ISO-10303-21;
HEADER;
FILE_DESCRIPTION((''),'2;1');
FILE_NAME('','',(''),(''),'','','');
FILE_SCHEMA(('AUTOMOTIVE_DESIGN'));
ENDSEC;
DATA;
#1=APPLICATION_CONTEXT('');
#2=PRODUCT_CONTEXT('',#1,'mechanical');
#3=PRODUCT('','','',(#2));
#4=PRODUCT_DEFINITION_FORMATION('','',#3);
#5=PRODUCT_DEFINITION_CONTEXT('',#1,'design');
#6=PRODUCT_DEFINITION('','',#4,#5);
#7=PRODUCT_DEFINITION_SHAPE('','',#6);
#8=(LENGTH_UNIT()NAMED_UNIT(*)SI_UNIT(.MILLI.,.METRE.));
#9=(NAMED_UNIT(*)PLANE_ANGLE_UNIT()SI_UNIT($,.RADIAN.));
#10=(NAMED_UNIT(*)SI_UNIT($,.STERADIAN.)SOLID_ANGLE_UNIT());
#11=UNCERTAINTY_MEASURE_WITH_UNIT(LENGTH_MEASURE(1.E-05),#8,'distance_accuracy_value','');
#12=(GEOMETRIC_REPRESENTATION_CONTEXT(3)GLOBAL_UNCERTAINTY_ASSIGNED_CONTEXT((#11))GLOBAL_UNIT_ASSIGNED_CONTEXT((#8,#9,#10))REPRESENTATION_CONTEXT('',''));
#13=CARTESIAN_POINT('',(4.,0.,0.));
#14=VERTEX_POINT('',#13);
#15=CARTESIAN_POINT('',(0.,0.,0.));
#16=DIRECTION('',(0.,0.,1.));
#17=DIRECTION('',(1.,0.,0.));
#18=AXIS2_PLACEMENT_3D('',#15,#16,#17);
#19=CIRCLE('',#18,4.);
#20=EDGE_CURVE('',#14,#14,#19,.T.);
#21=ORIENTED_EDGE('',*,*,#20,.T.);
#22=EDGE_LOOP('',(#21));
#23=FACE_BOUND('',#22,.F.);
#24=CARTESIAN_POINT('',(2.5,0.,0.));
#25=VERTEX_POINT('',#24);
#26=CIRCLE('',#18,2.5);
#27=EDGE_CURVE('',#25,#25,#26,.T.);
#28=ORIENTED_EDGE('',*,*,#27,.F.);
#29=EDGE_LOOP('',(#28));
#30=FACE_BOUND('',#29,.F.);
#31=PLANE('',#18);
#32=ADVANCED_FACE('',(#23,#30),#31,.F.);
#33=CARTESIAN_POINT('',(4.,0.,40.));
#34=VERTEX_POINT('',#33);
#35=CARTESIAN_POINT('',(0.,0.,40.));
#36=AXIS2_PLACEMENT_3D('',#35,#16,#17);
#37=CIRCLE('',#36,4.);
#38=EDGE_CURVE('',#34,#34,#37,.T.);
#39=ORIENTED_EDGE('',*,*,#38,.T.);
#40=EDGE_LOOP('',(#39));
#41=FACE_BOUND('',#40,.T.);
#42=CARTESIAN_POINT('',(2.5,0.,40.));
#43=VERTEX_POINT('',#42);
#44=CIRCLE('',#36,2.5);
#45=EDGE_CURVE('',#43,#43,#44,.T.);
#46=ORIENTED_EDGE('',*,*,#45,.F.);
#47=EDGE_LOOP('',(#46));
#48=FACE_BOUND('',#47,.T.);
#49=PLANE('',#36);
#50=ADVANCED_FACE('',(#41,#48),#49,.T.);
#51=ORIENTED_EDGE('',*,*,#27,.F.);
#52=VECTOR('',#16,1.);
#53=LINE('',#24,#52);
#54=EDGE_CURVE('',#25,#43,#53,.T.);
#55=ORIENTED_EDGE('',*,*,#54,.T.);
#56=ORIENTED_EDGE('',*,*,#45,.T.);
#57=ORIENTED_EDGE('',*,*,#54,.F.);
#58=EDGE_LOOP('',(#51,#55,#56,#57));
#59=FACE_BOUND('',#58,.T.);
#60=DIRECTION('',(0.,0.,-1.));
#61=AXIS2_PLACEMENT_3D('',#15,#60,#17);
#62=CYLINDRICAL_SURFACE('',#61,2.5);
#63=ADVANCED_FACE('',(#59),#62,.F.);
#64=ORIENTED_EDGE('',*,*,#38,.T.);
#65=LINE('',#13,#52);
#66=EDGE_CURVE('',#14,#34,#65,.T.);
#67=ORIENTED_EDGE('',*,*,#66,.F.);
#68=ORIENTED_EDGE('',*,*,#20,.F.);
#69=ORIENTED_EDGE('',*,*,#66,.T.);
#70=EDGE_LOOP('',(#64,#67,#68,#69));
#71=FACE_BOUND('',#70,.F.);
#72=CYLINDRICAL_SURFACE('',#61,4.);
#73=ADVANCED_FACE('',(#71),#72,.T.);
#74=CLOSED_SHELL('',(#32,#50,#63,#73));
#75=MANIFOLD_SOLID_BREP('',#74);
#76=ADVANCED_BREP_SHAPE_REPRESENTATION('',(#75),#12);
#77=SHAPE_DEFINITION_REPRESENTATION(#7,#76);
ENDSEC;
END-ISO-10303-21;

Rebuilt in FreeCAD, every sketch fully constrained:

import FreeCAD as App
import Part
import Sketcher

V = App.Vector
Q = App.Units.Quantity

doc = App.newDocument("Part")
body = doc.addObject("PartDesign::Body", "Body")

# Sketch on XY plane
sketch1 = body.newObject("Sketcher::SketchObject", "Sketch")
sketch1.AttachmentSupport = (doc.getObject("XY_Plane"), [""])
sketch1.MapMode = "FlatFace"
sketch1.addGeometry([
    Part.Circle(V(0, 0, 0), V(0, 0, 1), 4),
    Part.Circle(V(0, 0, 0), V(0, 0, 1), 2.5),
], False)
sketch1.addConstraint([
    Sketcher.Constraint("Coincident", 0, 3, -1, 1),
    Sketcher.Constraint("Coincident", 1, 3, -1, 1),
    Sketcher.Constraint("Diameter", 0, Q("8 mm")),
    Sketcher.Constraint("Diameter", 1, Q("5 mm")),
])
pad1 = body.newObject("PartDesign::Pad", "Pad")
pad1.Profile = sketch1
pad1.Length = 40

doc.recompute()
